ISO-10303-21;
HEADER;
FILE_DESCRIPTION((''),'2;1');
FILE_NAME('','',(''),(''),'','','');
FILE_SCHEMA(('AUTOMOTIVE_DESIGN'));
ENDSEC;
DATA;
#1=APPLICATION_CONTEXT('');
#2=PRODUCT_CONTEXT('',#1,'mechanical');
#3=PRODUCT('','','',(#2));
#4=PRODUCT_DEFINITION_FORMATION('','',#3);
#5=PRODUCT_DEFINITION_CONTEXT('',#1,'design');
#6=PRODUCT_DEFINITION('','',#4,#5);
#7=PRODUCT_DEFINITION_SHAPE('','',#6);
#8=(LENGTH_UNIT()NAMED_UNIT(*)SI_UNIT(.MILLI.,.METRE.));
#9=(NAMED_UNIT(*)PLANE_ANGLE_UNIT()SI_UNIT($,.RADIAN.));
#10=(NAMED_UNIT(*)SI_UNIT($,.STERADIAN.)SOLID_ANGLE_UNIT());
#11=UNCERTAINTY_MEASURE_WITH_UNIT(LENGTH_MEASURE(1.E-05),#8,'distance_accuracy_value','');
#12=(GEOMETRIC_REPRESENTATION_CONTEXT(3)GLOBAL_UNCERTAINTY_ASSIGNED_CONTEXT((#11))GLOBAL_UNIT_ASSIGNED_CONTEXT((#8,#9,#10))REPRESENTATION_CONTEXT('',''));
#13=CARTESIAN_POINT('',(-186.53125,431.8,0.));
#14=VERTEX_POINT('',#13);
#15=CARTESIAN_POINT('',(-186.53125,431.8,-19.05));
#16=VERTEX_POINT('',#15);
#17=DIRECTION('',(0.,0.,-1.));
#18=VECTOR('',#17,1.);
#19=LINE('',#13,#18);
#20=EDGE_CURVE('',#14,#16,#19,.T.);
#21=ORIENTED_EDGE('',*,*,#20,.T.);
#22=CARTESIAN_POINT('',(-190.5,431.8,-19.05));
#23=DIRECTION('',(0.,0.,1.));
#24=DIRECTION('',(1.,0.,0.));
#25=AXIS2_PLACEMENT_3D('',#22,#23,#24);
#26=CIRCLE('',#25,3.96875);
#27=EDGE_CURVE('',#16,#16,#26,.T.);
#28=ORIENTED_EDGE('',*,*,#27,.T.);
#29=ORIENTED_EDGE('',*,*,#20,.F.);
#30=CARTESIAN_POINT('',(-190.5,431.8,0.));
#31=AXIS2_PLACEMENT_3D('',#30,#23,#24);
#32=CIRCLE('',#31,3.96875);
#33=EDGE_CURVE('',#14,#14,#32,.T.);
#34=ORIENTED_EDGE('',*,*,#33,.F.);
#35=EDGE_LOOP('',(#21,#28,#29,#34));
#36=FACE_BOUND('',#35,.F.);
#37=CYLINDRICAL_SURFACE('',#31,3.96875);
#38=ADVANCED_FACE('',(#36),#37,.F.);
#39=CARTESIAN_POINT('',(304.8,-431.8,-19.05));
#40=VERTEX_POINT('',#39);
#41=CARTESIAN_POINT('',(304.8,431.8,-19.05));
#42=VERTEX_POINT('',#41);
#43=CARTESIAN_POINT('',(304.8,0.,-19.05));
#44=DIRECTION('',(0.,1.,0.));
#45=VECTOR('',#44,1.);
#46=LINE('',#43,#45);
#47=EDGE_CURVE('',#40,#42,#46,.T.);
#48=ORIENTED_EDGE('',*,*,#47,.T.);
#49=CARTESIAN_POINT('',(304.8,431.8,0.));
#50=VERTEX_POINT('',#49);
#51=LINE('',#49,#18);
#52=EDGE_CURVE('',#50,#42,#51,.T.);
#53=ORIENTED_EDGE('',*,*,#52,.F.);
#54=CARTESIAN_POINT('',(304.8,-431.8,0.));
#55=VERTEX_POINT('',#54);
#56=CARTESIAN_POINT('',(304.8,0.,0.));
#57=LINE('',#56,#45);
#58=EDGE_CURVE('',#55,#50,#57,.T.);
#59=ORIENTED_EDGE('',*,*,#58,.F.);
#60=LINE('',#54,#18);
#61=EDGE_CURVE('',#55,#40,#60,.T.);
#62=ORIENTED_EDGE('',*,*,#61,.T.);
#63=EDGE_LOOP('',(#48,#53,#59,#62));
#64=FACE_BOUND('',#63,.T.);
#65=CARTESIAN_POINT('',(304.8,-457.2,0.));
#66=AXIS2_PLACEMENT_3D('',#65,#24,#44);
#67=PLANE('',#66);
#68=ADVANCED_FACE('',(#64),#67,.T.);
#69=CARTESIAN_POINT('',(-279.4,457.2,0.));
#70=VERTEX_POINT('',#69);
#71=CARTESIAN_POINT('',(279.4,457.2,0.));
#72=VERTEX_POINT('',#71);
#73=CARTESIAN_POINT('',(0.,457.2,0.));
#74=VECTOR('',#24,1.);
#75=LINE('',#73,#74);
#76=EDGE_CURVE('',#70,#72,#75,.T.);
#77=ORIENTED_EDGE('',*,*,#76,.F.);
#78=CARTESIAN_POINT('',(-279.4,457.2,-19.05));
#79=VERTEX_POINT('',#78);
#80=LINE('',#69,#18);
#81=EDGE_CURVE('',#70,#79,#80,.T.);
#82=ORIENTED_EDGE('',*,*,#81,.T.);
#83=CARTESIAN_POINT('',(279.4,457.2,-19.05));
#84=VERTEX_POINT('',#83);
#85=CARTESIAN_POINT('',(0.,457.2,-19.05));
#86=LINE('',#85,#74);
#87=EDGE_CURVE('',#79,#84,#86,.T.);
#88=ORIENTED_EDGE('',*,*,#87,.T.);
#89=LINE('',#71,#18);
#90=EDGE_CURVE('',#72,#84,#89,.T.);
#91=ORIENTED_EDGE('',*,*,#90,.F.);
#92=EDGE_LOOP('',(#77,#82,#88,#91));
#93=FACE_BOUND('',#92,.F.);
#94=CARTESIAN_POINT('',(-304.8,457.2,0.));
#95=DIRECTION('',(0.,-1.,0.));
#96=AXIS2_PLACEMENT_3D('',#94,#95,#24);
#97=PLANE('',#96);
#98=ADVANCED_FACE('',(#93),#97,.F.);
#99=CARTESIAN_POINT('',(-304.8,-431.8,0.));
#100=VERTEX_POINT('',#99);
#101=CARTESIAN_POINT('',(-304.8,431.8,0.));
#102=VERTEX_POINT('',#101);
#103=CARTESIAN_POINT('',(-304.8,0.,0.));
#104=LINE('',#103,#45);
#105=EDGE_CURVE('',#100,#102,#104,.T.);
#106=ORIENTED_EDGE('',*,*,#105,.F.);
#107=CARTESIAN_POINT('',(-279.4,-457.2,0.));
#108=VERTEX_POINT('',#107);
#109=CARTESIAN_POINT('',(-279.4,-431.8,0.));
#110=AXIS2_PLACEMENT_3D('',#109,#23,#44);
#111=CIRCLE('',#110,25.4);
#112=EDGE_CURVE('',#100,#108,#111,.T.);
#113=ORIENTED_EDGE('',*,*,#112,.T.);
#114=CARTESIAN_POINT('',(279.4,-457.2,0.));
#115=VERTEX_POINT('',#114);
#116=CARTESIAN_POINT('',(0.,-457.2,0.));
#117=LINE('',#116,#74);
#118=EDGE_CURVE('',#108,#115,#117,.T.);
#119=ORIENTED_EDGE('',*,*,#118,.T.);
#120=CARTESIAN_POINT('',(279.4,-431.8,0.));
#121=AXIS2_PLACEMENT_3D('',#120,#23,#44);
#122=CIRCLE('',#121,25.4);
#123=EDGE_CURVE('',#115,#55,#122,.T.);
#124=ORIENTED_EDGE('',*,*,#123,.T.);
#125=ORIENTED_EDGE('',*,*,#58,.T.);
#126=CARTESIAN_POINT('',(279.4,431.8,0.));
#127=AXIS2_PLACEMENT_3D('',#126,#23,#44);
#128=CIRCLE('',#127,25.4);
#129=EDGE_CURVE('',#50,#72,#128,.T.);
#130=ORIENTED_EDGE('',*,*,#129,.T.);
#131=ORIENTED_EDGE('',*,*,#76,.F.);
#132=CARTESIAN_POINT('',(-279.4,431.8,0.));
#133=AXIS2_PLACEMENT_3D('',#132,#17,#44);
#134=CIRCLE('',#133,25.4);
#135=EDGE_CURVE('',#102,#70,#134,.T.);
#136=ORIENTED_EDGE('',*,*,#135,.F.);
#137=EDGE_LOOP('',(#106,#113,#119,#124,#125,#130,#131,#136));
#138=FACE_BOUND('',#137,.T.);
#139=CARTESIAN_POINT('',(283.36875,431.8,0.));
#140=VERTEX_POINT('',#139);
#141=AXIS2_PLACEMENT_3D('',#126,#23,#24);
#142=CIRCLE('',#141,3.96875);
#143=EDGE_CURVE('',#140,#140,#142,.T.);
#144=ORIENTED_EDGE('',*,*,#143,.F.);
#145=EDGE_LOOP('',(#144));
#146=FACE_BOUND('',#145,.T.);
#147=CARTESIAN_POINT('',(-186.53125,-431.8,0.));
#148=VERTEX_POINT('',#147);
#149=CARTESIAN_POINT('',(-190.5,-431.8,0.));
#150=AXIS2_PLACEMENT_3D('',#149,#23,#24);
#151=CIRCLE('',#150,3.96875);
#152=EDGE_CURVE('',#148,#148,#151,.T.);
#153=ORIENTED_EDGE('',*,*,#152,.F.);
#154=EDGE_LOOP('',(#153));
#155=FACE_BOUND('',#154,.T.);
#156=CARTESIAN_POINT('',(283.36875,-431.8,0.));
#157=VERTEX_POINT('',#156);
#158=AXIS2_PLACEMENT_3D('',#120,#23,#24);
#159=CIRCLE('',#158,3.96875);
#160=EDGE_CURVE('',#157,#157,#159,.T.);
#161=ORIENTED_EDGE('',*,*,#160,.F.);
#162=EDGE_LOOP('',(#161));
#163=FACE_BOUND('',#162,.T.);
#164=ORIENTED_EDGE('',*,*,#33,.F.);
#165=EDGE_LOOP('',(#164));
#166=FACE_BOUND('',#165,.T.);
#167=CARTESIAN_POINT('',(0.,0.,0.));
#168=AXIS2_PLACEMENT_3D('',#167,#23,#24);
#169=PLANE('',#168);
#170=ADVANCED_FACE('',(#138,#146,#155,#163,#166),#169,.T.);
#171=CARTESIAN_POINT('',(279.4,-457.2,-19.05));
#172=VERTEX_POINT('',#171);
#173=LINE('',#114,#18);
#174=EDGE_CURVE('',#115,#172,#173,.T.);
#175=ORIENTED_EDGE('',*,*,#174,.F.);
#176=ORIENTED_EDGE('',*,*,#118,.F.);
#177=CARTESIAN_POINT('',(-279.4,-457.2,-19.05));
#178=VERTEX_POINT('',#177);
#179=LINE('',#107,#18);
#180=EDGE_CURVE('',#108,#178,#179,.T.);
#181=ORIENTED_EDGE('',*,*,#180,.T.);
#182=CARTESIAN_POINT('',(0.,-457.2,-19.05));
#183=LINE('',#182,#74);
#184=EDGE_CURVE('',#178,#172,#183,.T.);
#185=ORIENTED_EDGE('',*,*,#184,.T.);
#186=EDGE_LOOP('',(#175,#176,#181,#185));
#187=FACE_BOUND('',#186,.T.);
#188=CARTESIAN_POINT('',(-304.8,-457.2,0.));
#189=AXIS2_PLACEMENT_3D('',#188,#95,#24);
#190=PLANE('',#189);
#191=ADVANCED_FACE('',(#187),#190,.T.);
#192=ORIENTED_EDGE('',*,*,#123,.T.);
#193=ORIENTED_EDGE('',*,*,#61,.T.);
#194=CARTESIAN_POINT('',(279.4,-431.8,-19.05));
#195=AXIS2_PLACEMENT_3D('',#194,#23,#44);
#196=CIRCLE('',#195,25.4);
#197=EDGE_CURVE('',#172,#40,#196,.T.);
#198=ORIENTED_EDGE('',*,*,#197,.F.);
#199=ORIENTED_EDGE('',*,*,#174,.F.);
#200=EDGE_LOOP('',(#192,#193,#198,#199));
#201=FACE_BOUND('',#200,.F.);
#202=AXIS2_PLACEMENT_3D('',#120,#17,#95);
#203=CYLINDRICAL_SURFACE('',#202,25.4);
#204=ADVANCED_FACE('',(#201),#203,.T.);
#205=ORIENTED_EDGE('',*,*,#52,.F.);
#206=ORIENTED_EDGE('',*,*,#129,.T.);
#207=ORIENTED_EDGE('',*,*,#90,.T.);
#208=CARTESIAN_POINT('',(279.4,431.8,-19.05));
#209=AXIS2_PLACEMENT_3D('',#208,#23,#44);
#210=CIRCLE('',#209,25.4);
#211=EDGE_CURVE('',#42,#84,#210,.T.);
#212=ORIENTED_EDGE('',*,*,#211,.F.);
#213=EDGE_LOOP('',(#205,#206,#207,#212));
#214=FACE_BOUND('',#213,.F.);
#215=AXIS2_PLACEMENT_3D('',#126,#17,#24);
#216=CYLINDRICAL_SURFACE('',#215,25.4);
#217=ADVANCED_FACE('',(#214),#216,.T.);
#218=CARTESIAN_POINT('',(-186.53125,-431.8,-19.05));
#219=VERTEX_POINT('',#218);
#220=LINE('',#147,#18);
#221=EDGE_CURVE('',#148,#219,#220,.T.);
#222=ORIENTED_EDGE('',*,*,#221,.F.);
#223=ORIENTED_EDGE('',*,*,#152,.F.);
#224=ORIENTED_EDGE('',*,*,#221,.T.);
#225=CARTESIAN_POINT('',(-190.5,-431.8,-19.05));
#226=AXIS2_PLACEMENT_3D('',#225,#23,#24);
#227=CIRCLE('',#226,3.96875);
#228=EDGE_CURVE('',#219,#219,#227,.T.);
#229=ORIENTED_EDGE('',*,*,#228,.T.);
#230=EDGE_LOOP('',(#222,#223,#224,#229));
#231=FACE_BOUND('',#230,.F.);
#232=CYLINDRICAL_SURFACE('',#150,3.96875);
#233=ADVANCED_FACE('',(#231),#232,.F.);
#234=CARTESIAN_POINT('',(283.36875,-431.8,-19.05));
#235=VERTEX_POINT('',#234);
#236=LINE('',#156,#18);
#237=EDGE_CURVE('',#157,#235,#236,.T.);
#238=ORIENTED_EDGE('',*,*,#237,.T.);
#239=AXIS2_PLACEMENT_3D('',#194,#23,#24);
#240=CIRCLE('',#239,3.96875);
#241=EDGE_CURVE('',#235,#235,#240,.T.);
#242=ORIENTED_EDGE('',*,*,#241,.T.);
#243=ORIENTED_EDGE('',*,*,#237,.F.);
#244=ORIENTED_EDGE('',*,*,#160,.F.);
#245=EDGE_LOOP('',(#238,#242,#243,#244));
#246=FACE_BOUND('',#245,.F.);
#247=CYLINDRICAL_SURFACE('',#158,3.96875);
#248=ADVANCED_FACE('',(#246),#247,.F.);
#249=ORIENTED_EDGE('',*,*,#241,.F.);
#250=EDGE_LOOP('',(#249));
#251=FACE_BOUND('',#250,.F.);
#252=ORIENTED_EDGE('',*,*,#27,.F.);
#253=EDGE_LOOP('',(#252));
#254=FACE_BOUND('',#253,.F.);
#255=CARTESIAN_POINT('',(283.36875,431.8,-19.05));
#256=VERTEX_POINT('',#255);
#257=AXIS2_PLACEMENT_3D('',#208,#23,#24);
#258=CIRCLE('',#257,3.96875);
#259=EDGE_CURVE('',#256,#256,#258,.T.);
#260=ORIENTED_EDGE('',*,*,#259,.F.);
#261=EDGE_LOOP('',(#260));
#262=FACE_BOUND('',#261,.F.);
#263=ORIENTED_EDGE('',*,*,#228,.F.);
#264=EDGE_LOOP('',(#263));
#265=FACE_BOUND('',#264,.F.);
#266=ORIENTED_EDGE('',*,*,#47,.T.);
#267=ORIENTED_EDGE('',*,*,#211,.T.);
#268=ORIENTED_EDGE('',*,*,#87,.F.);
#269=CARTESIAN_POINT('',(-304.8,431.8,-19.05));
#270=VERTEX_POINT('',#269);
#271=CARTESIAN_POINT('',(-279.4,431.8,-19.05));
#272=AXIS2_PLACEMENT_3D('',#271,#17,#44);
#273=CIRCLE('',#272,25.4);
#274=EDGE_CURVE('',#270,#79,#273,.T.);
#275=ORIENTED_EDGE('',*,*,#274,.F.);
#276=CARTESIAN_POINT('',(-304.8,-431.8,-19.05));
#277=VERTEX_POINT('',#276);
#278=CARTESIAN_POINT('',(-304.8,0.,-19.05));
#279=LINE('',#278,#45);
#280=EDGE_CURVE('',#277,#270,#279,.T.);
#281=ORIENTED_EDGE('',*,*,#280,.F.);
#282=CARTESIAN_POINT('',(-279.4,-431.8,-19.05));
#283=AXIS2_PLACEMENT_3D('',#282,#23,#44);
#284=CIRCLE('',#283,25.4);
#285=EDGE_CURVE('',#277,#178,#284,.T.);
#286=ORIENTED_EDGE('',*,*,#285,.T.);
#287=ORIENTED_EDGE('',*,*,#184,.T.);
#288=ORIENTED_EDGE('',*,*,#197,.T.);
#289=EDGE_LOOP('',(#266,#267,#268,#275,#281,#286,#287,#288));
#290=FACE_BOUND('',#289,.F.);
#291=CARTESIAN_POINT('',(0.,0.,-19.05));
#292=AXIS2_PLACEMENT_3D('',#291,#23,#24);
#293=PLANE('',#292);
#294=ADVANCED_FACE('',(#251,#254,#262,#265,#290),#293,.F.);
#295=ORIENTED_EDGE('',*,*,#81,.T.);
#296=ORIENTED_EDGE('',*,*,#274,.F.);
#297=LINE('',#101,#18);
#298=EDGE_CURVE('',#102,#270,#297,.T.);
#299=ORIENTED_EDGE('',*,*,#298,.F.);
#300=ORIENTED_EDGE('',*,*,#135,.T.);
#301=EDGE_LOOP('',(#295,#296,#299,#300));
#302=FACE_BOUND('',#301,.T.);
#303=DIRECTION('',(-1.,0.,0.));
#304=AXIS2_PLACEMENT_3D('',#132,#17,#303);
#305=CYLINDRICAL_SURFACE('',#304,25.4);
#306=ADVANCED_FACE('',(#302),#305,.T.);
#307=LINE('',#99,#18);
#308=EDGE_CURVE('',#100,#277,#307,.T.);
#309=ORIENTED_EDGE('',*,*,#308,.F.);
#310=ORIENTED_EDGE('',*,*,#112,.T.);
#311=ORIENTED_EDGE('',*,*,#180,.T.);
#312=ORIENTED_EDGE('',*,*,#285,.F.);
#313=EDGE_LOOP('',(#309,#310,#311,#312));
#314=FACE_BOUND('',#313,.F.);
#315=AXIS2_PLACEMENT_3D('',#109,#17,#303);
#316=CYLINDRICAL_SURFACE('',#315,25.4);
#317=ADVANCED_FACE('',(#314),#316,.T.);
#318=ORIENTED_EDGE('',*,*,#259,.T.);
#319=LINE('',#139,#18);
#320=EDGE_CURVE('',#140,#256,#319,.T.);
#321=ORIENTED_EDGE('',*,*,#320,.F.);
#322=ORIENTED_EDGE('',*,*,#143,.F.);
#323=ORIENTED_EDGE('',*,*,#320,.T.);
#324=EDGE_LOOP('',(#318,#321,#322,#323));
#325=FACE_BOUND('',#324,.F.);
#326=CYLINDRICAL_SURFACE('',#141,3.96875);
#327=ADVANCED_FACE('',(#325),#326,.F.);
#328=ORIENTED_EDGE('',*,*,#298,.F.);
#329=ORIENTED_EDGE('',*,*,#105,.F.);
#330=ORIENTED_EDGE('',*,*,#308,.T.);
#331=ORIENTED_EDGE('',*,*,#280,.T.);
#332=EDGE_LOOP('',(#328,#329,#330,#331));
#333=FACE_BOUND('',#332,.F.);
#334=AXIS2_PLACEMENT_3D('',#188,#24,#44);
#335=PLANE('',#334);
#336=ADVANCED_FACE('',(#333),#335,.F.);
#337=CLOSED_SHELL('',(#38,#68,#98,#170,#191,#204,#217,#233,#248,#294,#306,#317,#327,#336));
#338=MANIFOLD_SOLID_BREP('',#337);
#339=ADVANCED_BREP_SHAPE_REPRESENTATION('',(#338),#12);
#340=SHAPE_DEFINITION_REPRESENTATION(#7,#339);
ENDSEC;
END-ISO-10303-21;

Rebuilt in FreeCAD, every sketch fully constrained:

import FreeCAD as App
import Part
import Sketcher
Q = App.Units.Quantity


def edges_at(feature, points):
    """Names of the edges that pass closest to the given points."""
    edges = feature.Shape.Edges
    near = lambda p: min(range(len(edges)), key=lambda i: edges[i].distToShape(Part.Vertex(*p))[0])
    return sorted({f"Edge{near(p) + 1}" for p in points})

doc = App.newDocument("Part")
body = doc.addObject("PartDesign::Body", "Body")

sketch1 = doc.addObject("Sketcher::SketchObject", "Sketch")
body.addObject(sketch1)
sketch1.AttachmentSupport = (doc.XY_Plane, [""])
sketch1.MapMode = "FlatFace"
sketch1.addGeometry([
    Part.LineSegment(App.Vector(-305, 457, 0), App.Vector(-305, -457, 0)),
    Part.LineSegment(App.Vector(-305, -457, 0), App.Vector(305, -457, 0)),
    Part.LineSegment(App.Vector(305, -457, 0), App.Vector(305, 457, 0)),
    Part.LineSegment(App.Vector(305, 457, 0), App.Vector(-305, 457, 0)),
], False)
sketch1.addConstraint([
    Sketcher.Constraint("Coincident", 0, 2, 1, 1),
    Sketcher.Constraint("Coincident", 1, 2, 2, 1),
    Sketcher.Constraint("Coincident", 2, 2, 3, 1),
    Sketcher.Constraint("Coincident", 3, 2, 0, 1),
    Sketcher.Constraint("Vertical", 0),
    Sketcher.Constraint("Horizontal", 1),
    Sketcher.Constraint("Vertical", 2),
    Sketcher.Constraint("Horizontal", 3),
    Sketcher.Constraint("Symmetric", 0, 2, 2, 2, -1, 1),
    Sketcher.Constraint("DistanceX", 1, 1, 1, 2, Q("24 in")),
    Sketcher.Constraint("DistanceY", 0, 2, 0, 1, Q("36 in")),
])
pad1 = doc.addObject("PartDesign::Pad", "Pad")
body.addObject(pad1)
pad1.Profile = sketch1
pad1.Length = Q("0.75 in")
pad1.Reversed = True
doc.recompute()

fillet = doc.addObject("PartDesign::Fillet", "Fillet")
body.addObject(fillet)
fillet.Base = (pad1, edges_at(pad1, [
    (-304.8, -457.2, -9.525),
    (-304.8, 457.2, -9.525),
    (304.8, 457.2, -9.525),
    (304.8, -457.2, -9.525),
]))
fillet.Radius = Q("1 in")

sketch2 = doc.addObject("Sketcher::SketchObject", "Sketch001")
body.addObject(sketch2)
sketch2.AttachmentSupport = (doc.XY_Plane, [""])
sketch2.MapMode = "FlatFace"
sketch2.addGeometry([
    Part.Circle(App.Vector(-190.5, -431.8, 0), App.Vector(0, 0, 1), 4),
    Part.Circle(App.Vector(279.4, -431.8, 0), App.Vector(0, 0, 1), 4),
    Part.Circle(App.Vector(279.4, 431.8, 0), App.Vector(0, 0, 1), 4),
    Part.Circle(App.Vector(-190.5, 431.8, 0), App.Vector(0, 0, 1), 4),
], False)
sketch2.addConstraint([
    Sketcher.Constraint("Equal", 0, 1),
    Sketcher.Constraint("Equal", 1, 2),
    Sketcher.Constraint("Equal", 2, 3),
    Sketcher.Constraint("Symmetric", 1, 3, 2, 3, -1),
    Sketcher.Constraint("Symmetric", 0, 3, 3, 3, -1),
    Sketcher.Constraint("Horizontal", 0, 3, 1, 3),
    Sketcher.Constraint("Diameter", 0, Q("0.3125 in")),
    Sketcher.Constraint("DistanceY", 0, 3, -1, 1, Q("17 in")),
    Sketcher.Constraint("DistanceX", -1, 1, 1, 3, Q("11 in")),
    Sketcher.Constraint("DistanceX", 0, 3, -1, 1, Q("7.5 in")),
])
pocket1 = doc.addObject("PartDesign::Pocket", "Pocket")
body.addObject(pocket1)
pocket1.Profile = sketch2
pocket1.Type = "ThroughAll"

doc.recompute()
